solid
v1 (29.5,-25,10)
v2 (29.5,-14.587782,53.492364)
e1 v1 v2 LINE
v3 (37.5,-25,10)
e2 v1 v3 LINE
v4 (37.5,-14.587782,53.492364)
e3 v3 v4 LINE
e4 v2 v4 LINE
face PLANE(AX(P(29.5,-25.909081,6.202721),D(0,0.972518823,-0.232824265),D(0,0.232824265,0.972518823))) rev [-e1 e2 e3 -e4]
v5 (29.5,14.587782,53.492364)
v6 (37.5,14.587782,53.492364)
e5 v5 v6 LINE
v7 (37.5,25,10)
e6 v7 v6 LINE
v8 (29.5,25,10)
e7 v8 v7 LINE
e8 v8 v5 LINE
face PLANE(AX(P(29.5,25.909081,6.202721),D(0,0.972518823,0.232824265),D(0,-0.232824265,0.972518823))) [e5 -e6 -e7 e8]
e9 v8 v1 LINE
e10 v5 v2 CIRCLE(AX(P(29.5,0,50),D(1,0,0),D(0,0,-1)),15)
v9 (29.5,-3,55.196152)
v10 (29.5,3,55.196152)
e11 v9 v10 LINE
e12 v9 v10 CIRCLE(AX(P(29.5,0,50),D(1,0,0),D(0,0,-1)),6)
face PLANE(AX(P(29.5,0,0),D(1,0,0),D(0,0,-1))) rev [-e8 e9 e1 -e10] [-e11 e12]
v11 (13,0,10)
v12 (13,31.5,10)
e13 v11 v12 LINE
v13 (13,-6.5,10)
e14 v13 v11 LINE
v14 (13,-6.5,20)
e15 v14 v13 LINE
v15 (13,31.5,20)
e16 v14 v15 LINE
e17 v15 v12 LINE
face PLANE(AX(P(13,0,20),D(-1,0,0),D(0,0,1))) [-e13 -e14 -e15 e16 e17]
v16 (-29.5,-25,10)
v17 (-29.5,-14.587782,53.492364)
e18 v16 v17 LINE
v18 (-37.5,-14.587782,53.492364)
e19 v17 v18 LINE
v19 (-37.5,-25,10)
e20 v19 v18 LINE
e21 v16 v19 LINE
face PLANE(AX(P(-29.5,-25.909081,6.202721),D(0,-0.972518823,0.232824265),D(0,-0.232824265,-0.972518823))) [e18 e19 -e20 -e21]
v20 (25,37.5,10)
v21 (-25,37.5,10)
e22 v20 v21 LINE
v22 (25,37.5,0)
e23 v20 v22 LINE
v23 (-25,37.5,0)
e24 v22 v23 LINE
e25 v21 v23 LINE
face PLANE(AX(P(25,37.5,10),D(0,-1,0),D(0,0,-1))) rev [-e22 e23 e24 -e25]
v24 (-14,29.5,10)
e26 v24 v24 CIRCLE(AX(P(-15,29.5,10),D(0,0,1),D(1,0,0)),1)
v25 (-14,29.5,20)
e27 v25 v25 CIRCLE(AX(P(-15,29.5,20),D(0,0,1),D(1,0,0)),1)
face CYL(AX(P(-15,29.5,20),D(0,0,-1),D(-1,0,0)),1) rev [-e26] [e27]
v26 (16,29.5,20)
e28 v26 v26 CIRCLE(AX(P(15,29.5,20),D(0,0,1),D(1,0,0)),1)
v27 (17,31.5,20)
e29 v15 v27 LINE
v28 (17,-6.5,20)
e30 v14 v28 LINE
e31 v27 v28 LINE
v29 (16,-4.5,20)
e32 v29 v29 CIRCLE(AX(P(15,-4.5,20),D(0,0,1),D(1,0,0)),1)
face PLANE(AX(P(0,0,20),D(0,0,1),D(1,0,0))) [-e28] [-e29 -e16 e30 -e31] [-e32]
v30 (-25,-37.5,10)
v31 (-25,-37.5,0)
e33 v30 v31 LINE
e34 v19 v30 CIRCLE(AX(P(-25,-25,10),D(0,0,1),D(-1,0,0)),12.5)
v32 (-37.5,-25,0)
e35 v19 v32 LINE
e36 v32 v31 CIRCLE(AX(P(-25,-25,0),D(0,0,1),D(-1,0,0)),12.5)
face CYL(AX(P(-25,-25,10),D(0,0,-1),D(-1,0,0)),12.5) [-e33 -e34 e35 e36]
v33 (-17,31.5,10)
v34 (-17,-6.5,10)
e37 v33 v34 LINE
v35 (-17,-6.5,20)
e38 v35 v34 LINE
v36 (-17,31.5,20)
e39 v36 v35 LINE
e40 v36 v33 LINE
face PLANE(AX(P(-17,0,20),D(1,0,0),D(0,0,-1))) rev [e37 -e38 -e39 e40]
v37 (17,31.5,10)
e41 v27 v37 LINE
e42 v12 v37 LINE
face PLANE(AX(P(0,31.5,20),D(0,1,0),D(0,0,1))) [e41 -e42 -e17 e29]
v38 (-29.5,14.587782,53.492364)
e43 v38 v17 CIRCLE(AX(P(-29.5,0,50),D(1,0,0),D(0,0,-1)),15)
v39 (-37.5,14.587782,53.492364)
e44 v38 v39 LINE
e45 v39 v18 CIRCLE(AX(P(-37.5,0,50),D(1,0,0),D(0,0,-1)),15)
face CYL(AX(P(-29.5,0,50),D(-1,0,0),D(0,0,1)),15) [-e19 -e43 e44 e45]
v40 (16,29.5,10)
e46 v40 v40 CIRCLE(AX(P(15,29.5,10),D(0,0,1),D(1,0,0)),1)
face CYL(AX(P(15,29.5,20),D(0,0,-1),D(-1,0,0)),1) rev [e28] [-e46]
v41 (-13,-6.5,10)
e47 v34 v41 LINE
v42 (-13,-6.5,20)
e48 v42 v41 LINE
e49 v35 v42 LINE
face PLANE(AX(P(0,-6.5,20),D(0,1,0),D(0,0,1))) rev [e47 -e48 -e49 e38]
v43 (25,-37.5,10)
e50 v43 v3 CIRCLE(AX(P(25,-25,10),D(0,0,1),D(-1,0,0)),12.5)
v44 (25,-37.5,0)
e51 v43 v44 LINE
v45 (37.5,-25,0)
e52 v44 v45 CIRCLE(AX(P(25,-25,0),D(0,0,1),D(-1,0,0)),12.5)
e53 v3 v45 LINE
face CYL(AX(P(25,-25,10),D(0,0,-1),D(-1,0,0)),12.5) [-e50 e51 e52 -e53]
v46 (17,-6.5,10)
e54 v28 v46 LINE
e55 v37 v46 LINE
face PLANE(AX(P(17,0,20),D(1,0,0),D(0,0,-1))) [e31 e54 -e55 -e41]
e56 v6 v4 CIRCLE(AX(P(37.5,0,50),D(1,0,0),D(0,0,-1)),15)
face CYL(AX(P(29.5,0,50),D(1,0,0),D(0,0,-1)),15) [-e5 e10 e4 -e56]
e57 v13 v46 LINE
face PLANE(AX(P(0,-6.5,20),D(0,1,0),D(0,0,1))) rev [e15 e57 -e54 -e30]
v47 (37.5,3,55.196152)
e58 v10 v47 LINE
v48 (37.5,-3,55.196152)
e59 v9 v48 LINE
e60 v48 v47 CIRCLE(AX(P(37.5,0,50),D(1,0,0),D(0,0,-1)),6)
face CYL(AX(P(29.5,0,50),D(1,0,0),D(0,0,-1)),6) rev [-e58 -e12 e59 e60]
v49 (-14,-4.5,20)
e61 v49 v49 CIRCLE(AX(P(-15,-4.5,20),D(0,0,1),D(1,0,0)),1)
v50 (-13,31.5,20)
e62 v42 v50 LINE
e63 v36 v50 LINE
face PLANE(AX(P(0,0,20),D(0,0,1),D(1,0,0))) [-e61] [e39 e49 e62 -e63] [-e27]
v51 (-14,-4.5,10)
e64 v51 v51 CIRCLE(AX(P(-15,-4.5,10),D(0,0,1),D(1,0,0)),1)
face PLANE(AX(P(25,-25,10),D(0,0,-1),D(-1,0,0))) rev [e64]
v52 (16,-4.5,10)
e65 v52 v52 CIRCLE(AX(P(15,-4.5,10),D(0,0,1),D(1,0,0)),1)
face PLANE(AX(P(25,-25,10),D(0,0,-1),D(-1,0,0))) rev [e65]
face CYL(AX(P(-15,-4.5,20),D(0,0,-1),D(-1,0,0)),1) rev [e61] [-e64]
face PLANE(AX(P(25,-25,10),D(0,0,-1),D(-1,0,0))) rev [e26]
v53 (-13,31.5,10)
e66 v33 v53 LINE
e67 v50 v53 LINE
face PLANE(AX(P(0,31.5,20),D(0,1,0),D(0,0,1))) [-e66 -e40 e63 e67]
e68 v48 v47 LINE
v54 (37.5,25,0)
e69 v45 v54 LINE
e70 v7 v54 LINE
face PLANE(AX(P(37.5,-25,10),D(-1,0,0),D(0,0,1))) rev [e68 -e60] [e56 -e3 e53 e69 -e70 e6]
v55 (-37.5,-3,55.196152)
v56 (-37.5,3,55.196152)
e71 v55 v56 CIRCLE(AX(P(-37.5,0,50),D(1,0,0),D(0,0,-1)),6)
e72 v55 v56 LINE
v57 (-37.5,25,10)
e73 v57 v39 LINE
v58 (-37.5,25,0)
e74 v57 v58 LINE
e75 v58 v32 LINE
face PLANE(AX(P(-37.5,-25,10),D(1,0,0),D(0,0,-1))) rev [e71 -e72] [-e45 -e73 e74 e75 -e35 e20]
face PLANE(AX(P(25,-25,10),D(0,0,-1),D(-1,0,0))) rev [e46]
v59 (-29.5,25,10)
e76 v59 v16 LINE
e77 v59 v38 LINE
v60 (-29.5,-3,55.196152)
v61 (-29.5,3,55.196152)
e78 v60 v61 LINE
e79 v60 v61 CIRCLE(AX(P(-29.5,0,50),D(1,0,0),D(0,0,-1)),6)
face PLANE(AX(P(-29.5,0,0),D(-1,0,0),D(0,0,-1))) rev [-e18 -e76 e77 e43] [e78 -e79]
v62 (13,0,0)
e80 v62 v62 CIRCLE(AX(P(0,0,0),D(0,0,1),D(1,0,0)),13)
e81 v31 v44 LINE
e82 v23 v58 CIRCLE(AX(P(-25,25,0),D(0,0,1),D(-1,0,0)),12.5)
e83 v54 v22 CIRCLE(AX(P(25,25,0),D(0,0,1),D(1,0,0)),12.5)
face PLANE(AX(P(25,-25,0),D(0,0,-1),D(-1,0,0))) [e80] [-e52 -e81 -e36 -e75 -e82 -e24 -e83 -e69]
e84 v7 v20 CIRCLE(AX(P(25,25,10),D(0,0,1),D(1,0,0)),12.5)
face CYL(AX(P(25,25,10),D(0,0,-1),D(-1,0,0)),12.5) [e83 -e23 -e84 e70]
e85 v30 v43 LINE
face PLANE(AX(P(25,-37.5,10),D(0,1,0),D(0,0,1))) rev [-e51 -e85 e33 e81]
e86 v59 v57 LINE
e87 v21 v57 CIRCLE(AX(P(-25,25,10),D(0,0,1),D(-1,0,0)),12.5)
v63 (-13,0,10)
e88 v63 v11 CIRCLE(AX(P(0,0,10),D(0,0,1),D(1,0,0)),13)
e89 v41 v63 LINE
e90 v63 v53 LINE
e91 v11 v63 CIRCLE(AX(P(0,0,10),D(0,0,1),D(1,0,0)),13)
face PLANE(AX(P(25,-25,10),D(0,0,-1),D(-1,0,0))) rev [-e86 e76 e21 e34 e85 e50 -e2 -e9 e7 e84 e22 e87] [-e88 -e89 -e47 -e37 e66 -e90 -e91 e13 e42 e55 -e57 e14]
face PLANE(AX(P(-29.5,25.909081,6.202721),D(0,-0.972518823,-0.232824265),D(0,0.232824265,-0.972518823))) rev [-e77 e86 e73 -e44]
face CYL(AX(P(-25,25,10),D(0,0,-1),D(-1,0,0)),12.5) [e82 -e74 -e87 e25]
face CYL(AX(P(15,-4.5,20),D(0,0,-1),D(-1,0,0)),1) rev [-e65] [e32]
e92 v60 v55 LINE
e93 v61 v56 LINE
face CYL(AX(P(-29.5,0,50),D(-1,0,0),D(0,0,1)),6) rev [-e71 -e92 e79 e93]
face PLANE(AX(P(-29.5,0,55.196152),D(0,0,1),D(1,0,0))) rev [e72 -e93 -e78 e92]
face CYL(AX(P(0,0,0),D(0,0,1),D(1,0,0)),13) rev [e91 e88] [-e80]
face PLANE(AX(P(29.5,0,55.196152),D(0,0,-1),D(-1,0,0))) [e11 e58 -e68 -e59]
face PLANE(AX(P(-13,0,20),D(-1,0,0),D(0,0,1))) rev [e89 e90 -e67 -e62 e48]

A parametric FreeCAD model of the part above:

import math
import FreeCAD as App
import Part
import Sketcher


def add_polygon(sketch, points):
    """Adds a closed chain of lines whose ends are joined by coincident constraints."""
    first, n = sketch.GeometryCount, len(points)
    for a, b in zip(points, points[1:] + points[:1]):
        sketch.addGeometry(Part.LineSegment(App.Vector(*a, 0), App.Vector(*b, 0)), False)
    for i in range(n):
        sketch.addConstraint(Sketcher.Constraint("Coincident", first + i, 2, first + (i + 1) % n, 1))

doc = App.newDocument("Part")
body = doc.addObject("PartDesign::Body", "Body")

sketch1 = body.newObject("Sketcher::SketchObject", "Sketch")
sketch1.AttachmentSupport = (doc.getObject("XY_Plane"), [""])
sketch1.MapMode = "FlatFace"
sketch1.addGeometry(Part.LineSegment(App.Vector(37.5, -25, 0), App.Vector(37.5, 25, 0)), False)
sketch1.addGeometry(Part.ArcOfCircle(Part.Circle(App.Vector(25, 25, 0), App.Vector(0, 0, 1), 12.5), math.radians(0), math.radians(90)), False)
sketch1.addGeometry(Part.LineSegment(App.Vector(25, 37.5, 0), App.Vector(-25, 37.5, 0)), False)
sketch1.addGeometry(Part.ArcOfCircle(Part.Circle(App.Vector(-25, 25, 0), App.Vector(0, 0, 1), 12.5), math.radians(90), math.radians(180)), False)
sketch1.addGeometry(Part.LineSegment(App.Vector(-37.5, 25, 0), App.Vector(-37.5, -25, 0)), False)
sketch1.addGeometry(Part.ArcOfCircle(Part.Circle(App.Vector(-25, -25, 0), App.Vector(0, 0, 1), 12.5), math.radians(180), math.radians(270)), False)
sketch1.addGeometry(Part.LineSegment(App.Vector(-25, -37.5, 0), App.Vector(25, -37.5, 0)), False)
sketch1.addGeometry(Part.ArcOfCircle(Part.Circle(App.Vector(25, -25, 0), App.Vector(0, 0, 1), 12.5), math.radians(-90), math.radians(0)), False)
sketch1.addConstraint(Sketcher.Constraint("Tangent", 0, 2, 1, 1))
sketch1.addConstraint(Sketcher.Constraint("Tangent", 1, 2, 2, 1))
sketch1.addConstraint(Sketcher.Constraint("Tangent", 2, 2, 3, 1))
sketch1.addConstraint(Sketcher.Constraint("Tangent", 3, 2, 4, 1))
sketch1.addConstraint(Sketcher.Constraint("Tangent", 4, 2, 5, 1))
sketch1.addConstraint(Sketcher.Constraint("Tangent", 5, 2, 6, 1))
sketch1.addConstraint(Sketcher.Constraint("Tangent", 6, 2, 7, 1))
sketch1.addConstraint(Sketcher.Constraint("Tangent", 7, 2, 0, 1))
sketch1.addConstraint(Sketcher.Constraint("Vertical", 0))
sketch1.addConstraint(Sketcher.Constraint("Horizontal", 2))
sketch1.addConstraint(Sketcher.Constraint("Vertical", 4))
sketch1.addConstraint(Sketcher.Constraint("Horizontal", 6))
sketch1.addConstraint(Sketcher.Constraint("Equal", 1, 3))
sketch1.addConstraint(Sketcher.Constraint("Equal", 3, 5))
sketch1.addConstraint(Sketcher.Constraint("Equal", 5, 7))
sketch1.addConstraint(Sketcher.Constraint("Symmetric", 1, 3, 5, 3, -1, 1))
sketch1.addConstraint(Sketcher.Constraint("Equal", 6, 0))
sketch1.addConstraint(Sketcher.Constraint("Radius", 1, 12.5))
sketch1.addConstraint(Sketcher.Constraint("DistanceX", 2, 2, 2, 1, 50.0))
pad1 = body.newObject("PartDesign::Pad", "Pad")
pad1.Profile = sketch1
pad1.Length = 10

sketch2 = body.newObject("Sketcher::SketchObject", "Sketch001")
sketch2.AttachmentSupport = (doc.getObject("YZ_Plane"), [""])
sketch2.MapMode = "FlatFace"
sketch2.AttachmentOffset = App.Placement(App.Vector(0, 0, 37.5), App.Rotation())
sketch2.addGeometry(Part.ArcOfCircle(Part.Circle(App.Vector(0, 50, 0), App.Vector(0, 0, 1), 15), math.radians(13.463405), math.radians(166.536595)), False)
sketch2.addGeometry(Part.LineSegment(App.Vector(-14.587782, 53.492364, 0), App.Vector(-25, 10, 0)), False)
sketch2.addGeometry(Part.LineSegment(App.Vector(-25, 10, 0), App.Vector(25, 10, 0)), False)
sketch2.addGeometry(Part.LineSegment(App.Vector(25, 10, 0), App.Vector(14.587782, 53.492364, 0)), False)
sketch2.addGeometry(Part.ArcOfCircle(Part.Circle(App.Vector(0, 50, 0), App.Vector(0, 0, 1), 6), math.radians(-90), math.radians(60)), False)
sketch2.addGeometry(Part.ArcOfCircle(Part.Circle(App.Vector(0, 50, 0), App.Vector(0, 0, 1), 6), math.radians(120), math.radians(270)), False)
sketch2.addGeometry(Part.LineSegment(App.Vector(-3, 55.196152, 0), App.Vector(3, 55.196152, 0)), False)
sketch2.addConstraint(Sketcher.Constraint("Tangent", 0, 2, 1, 1))
sketch2.addConstraint(Sketcher.Constraint("Coincident", 1, 2, 2, 1))
sketch2.addConstraint(Sketcher.Constraint("Coincident", 2, 2, 3, 1))
sketch2.addConstraint(Sketcher.Constraint("Tangent", 3, 2, 0, 1))
sketch2.addConstraint(Sketcher.Constraint("Tangent", 4, 1, 5, 2))
sketch2.addConstraint(Sketcher.Constraint("Coincident", 5, 1, 6, 1))
sketch2.addConstraint(Sketcher.Constraint("Coincident", 6, 2, 4, 2))
sketch2.addConstraint(Sketcher.Constraint("Horizontal", 2))
sketch2.addConstraint(Sketcher.Constraint("Horizontal", 6))
sketch2.addConstraint(Sketcher.Constraint("Coincident", 4, 3, 0, 3))
sketch2.addConstraint(Sketcher.Constraint("Equal", 4, 5))
sketch2.addConstraint(Sketcher.Constraint("Symmetric", 0, 2, 3, 2, -2))
sketch2.addConstraint(Sketcher.Constraint("PointOnObject", 4, 1, -2))
sketch2.addConstraint(Sketcher.Constraint("Radius", 0, 15.0))
sketch2.addConstraint(Sketcher.Constraint("Radius", 4, 6.0))
sketch2.addConstraint(Sketcher.Constraint("DistanceX", 2, 1, 2, 2, 50.0))
sketch2.addConstraint(Sketcher.Constraint("DistanceX", 6, 1, 6, 2, 6.0))
sketch2.addConstraint(Sketcher.Constraint("DistanceY", -1, 1, 0, 3, 50.0))
sketch2.addConstraint(Sketcher.Constraint("DistanceY", -1, 1, 1, 2, 10.0))
pad2 = body.newObject("PartDesign::Pad", "Pad001")
pad2.Profile = sketch2
pad2.Length = 8
pad2.Reversed = True
doc.recompute()

mirrored = body.newObject("PartDesign::Mirrored", "Mirrored")
mirrored.Originals = [pad2]
mirrored.MirrorPlane = (doc.getObject("YZ_Plane"), [""])
body.Tip = mirrored

sketch3 = body.newObject("Sketcher::SketchObject", "Sketch002")
sketch3.AttachmentSupport = (doc.getObject("XY_Plane"), [""])
sketch3.MapMode = "FlatFace"
sketch3.AttachmentOffset = App.Placement(App.Vector(0, 0, 10), App.Rotation())
sketch3.addGeometry(Part.Circle(App.Vector(0, 0, 0), App.Vector(0, 0, 1), 13), False)
sketch3.addConstraint(Sketcher.Constraint("Coincident", 0, 3, -1, 1))
sketch3.addConstraint(Sketcher.Constraint("Diameter", 0, 26.0))
pocket1 = body.newObject("PartDesign::Pocket", "Pocket")
pocket1.Profile = sketch3
pocket1.Type = "ThroughAll"

sketch4 = body.newObject("Sketcher::SketchObject", "Sketch003")
sketch4.AttachmentSupport = (doc.getObject("XY_Plane"), [""])
sketch4.MapMode = "FlatFace"
sketch4.AttachmentOffset = App.Placement(App.Vector(0, 0, 10), App.Rotation())
add_polygon(sketch4, [(-17, 31.5), (-17, -6.5), (-13, -6.5), (-13, 31.5)])
sketch4.addGeometry(Part.Circle(App.Vector(-15, -4.5, 0), App.Vector(0, 0, 1), 1), False)
sketch4.addGeometry(Part.Circle(App.Vector(-15, 29.5, 0), App.Vector(0, 0, 1), 1), False)
add_polygon(sketch4, [(13, 31.5), (13, -6.5), (17, -6.5), (17, 31.5)])
sketch4.addGeometry(Part.Circle(App.Vector(15, -4.5, 0), App.Vector(0, 0, 1), 1), False)
sketch4.addGeometry(Part.Circle(App.Vector(15, 29.5, 0), App.Vector(0, 0, 1), 1), False)
sketch4.addConstraint(Sketcher.Constraint("Vertical", 0))
sketch4.addConstraint(Sketcher.Constraint("Horizontal", 1))
sketch4.addConstraint(Sketcher.Constraint("Vertical", 2))
sketch4.addConstraint(Sketcher.Constraint("Horizontal", 3))
sketch4.addConstraint(Sketcher.Constraint("Vertical", 6))
sketch4.addConstraint(Sketcher.Constraint("Horizontal", 7))
sketch4.addConstraint(Sketcher.Constraint("Vertical", 8))
sketch4.addConstraint(Sketcher.Constraint("Horizontal", 9))
sketch4.addConstraint(Sketcher.Constraint("Equal", 4, 5))
sketch4.addConstraint(Sketcher.Constraint("Equal", 5, 10))
sketch4.addConstraint(Sketcher.Constraint("Equal", 10, 11))
sketch4.addConstraint(Sketcher.Constraint("Symmetric", 4, 3, 10, 3, -2))
sketch4.addConstraint(Sketcher.Constraint("Symmetric", 5, 3, 11, 3, -2))
sketch4.addConstraint(Sketcher.Constraint("Symmetric", 1, 2, 6, 2, -2))
sketch4.addConstraint(Sketcher.Constraint("Symmetric", 3, 2, 8, 2, -2))
sketch4.addConstraint(Sketcher.Constraint("Vertical", 4, 3, 5, 3))
sketch4.addConstraint(Sketcher.Constraint("Diameter", 4, 2.0))
sketch4.addConstraint(Sketcher.Constraint("DistanceX", 1, 1, 1, 2, 4.0))
sketch4.addConstraint(Sketcher.Constraint("DistanceY", 0, 2, 0, 1, 38.0))
sketch4.addConstraint(Sketcher.Constraint("DistanceX", 4, 3, -1, 1, 15.0))
sketch4.addConstraint(Sketcher.Constraint("DistanceX", 0, 2, -1, 1, 17.0))
sketch4.addConstraint(Sketcher.Constraint("DistanceY", 4, 3, 5, 3, 34.0))
sketch4.addConstraint(Sketcher.Constraint("DistanceY", 0, 2, 4, 3, 2.0))
sketch4.addConstraint(Sketcher.Constraint("DistanceY", 4, 3, -1, 1, 4.5))
pad3 = body.newObject("PartDesign::Pad", "Pad002")
pad3.Profile = sketch4
pad3.Length = 10

doc.recompute()
